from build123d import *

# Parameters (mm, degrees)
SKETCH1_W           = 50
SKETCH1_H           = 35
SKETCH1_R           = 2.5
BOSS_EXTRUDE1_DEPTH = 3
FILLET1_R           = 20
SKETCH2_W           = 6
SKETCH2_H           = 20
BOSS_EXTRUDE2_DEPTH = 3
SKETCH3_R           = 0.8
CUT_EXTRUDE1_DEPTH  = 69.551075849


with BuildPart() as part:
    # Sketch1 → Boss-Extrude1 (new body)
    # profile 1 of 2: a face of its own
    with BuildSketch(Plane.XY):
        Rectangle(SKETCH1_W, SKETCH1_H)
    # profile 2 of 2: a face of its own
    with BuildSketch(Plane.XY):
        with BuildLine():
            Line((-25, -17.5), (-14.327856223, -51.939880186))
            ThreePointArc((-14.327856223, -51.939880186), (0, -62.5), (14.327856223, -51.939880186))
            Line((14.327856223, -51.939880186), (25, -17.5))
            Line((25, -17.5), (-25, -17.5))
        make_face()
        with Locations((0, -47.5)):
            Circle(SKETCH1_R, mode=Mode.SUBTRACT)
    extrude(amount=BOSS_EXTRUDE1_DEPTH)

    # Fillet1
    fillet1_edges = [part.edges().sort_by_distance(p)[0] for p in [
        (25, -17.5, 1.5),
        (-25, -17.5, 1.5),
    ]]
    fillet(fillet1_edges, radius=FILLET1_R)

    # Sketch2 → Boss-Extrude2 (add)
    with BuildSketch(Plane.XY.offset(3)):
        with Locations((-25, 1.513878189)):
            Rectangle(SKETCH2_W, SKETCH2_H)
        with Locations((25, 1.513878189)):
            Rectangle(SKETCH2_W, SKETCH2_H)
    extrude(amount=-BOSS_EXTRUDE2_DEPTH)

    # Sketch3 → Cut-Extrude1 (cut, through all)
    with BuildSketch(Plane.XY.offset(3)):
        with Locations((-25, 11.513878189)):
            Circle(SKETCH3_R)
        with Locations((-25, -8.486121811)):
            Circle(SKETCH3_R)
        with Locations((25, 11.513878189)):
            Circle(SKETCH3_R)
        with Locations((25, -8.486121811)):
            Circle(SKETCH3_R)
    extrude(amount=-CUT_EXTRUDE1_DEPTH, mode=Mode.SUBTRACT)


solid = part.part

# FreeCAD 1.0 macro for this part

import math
import FreeCAD as App
import Part
import Sketcher


def edges_at(feature, points):
    """Names of the edges that pass closest to the given points."""
    edges = feature.Shape.Edges
    near = lambda p: min(range(len(edges)), key=lambda i: edges[i].distToShape(Part.Vertex(*p))[0])
    return sorted({f"Edge{near(p) + 1}" for p in points})


def add_polygon(sketch, points):
    """Adds a closed chain of lines whose ends are joined by coincident constraints."""
    first, n = sketch.GeometryCount, len(points)
    for a, b in zip(points, points[1:] + points[:1]):
        sketch.addGeometry(Part.LineSegment(App.Vector(*a, 0), App.Vector(*b, 0)), False)
    for i in range(n):
        sketch.addConstraint(Sketcher.Constraint("Coincident", first + i, 2, first + (i + 1) % n, 1))

doc = App.newDocument("Part")
body = doc.addObject("PartDesign::Body", "Body")

# Sketch on XY plane
sketch1 = doc.addObject("Sketcher::SketchObject", "Sketch")
body.addObject(sketch1)
sketch1.AttachmentSupport = (doc.XY_Plane, [""])
sketch1.MapMode = "FlatFace"
sketch1.addGeometry([
    Part.LineSegment(App.Vector(-25, 17.5, 0), App.Vector(-25, -17.5, 0)),  # 0
    Part.LineSegment(App.Vector(-25, -17.5, 0), App.Vector(-14.327856, -51.93988, 0)),  # 1
    Part.ArcOfCircle(Part.Circle(App.Vector(0, -47.5, 0), App.Vector(0, 0, 1), 15), math.radians(-162.782968), math.radians(-17.217032)),  # 2
    Part.LineSegment(App.Vector(14.327856, -51.93988, 0), App.Vector(25, -17.5, 0)),  # 3
    Part.LineSegment(App.Vector(25, -17.5, 0), App.Vector(25, 17.5, 0)),  # 4
    Part.LineSegment(App.Vector(25, 17.5, 0), App.Vector(-25, 17.5, 0)),  # 5
    Part.Circle(App.Vector(0, -47.5, 0), App.Vector(0, 0, 1), 2.5),  # 6
], False)
sketch1.addConstraint([
    Sketcher.Constraint("Coincident", 0, 2, 1, 1),
    Sketcher.Constraint("Tangent", 1, 2, 2, 1),
    Sketcher.Constraint("Tangent", 2, 2, 3, 1),
    Sketcher.Constraint("Coincident", 3, 2, 4, 1),
    Sketcher.Constraint("Coincident", 4, 2, 5, 1),
    Sketcher.Constraint("Coincident", 5, 2, 0, 1),
    Sketcher.Constraint("Vertical", 0),
    Sketcher.Constraint("Vertical", 4),
    Sketcher.Constraint("Horizontal", 5),
    Sketcher.Constraint("Coincident", 6, 3, 2, 3),
    Sketcher.Constraint("Symmetric", 0, 2, 4, 2, -1, 1),
    Sketcher.Constraint("Symmetric", 1, 2, 2, 2, -2),
    Sketcher.Constraint("Diameter", 6, 5.0),
    Sketcher.Constraint("Radius", 2, 15.0),
    Sketcher.Constraint("DistanceX", 5, 2, 5, 1, 50.0),
    Sketcher.Constraint("DistanceY", 0, 2, 0, 1, 35.0),
    Sketcher.Constraint("DistanceY", 2, 3, 0, 2, 30.0),
])
pad1 = doc.addObject("PartDesign::Pad", "Pad")
body.addObject(pad1)
pad1.Profile = sketch1
pad1.Length = 3
doc.recompute()

fillet = doc.addObject("PartDesign::Fillet", "Fillet")
body.addObject(fillet)
fillet.Base = (pad1, edges_at(pad1, [(25, -17.5, 1.5), (-25, -17.5, 1.5)]))
fillet.Radius = 20

# Sketch on XY plane
sketch2 = doc.addObject("Sketcher::SketchObject", "Sketch001")
body.addObject(sketch2)
sketch2.AttachmentSupport = (doc.XY_Plane, [""])
sketch2.MapMode = "FlatFace"
sketch2.AttachmentOffset = App.Placement(App.Vector(0, 0, 3), App.Rotation())
add_polygon(sketch2, [(-28, 11.513878), (-28, -8.486122), (-22, -8.486122), (-22, 11.513878)])  # lines 0-3
add_polygon(sketch2, [(22, 11.513878), (22, -8.486122), (28, -8.486122), (28, 11.513878)])  # lines 4-7
sketch2.addConstraint([
    Sketcher.Constraint("Vertical", 0),
    Sketcher.Constraint("Horizontal", 1),
    Sketcher.Constraint("Vertical", 2),
    Sketcher.Constraint("Horizontal", 3),
    Sketcher.Constraint("Vertical", 4),
    Sketcher.Constraint("Horizontal", 5),
    Sketcher.Constraint("Vertical", 6),
    Sketcher.Constraint("Horizontal", 7),
    Sketcher.Constraint("Symmetric", 1, 2, 4, 2, -2),
    Sketcher.Constraint("Symmetric", 3, 2, 6, 2, -2),
    Sketcher.Constraint("DistanceX", 1, 1, 1, 2, 6.0),
    Sketcher.Constraint("DistanceY", 0, 2, 0, 1, 20.0),
    Sketcher.Constraint("DistanceX", 0, 2, -1, 1, 28.0),
    Sketcher.Constraint("DistanceY", 0, 2, -1, 1, 8.486122),
])
pad2 = doc.addObject("PartDesign::Pad", "Pad001")
body.addObject(pad2)
pad2.Profile = sketch2
pad2.Length = 3
pad2.Reversed = True

# Sketch on XY plane
sketch3 = doc.addObject("Sketcher::SketchObject", "Sketch002")
body.addObject(sketch3)
sketch3.AttachmentSupport = (doc.XY_Plane, [""])
sketch3.MapMode = "FlatFace"
sketch3.AttachmentOffset = App.Placement(App.Vector(0, 0, 3), App.Rotation())
sketch3.addGeometry([
    Part.Circle(App.Vector(-25, 11.513878, 0), App.Vector(0, 0, 1), 0.8),
    Part.Circle(App.Vector(-25, -8.486122, 0), App.Vector(0, 0, 1), 0.8),
    Part.Circle(App.Vector(25, 11.513878, 0), App.Vector(0, 0, 1), 0.8),
    Part.Circle(App.Vector(25, -8.486122, 0), App.Vector(0, 0, 1), 0.8),
], False)
sketch3.addConstraint([
    Sketcher.Constraint("Equal", 0, 1),
    Sketcher.Constraint("Equal", 1, 2),
    Sketcher.Constraint("Equal", 2, 3),
    Sketcher.Constraint("Symmetric", 0, 3, 2, 3, -2),
    Sketcher.Constraint("Symmetric", 1, 3, 3, 3, -2),
    Sketcher.Constraint("Vertical", 0, 3, 1, 3),
    Sketcher.Constraint("Diameter", 0, 1.6),
    Sketcher.Constraint("DistanceX", 0, 3, -1, 1, 25.0),
    Sketcher.Constraint("DistanceY", 1, 3, 0, 3, 20.0),
    Sketcher.Constraint("DistanceY", -1, 1, 0, 3, 11.513878),
])
pocket1 = doc.addObject("PartDesign::Pocket", "Pocket")
body.addObject(pocket1)
pocket1.Profile = sketch3
pocket1.Type = "ThroughAll"

doc.recompute()
